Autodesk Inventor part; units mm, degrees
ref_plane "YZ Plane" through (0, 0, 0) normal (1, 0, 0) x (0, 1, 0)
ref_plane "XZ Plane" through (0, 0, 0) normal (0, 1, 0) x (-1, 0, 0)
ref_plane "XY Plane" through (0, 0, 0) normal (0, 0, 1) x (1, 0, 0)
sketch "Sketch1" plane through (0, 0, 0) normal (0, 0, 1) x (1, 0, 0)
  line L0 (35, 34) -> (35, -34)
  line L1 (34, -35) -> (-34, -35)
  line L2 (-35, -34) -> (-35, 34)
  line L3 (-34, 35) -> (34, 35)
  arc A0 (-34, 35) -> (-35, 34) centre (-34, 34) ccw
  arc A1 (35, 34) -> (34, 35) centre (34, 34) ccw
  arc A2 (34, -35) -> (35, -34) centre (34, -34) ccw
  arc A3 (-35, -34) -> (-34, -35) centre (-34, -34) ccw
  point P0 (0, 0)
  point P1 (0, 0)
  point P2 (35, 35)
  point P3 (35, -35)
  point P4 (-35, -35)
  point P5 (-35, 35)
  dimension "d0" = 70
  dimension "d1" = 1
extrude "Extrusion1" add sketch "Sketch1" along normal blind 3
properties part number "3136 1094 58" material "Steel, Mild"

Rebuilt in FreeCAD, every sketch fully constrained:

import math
import FreeCAD as App
import Part
import Sketcher

doc = App.newDocument("Part")
body = doc.addObject("PartDesign::Body", "Body")

# Sketch on XY plane
sketch1 = body.newObject("Sketcher::SketchObject", "Sketch")
sketch1.AttachmentSupport = (doc.getObject("XY_Plane"), [""])
sketch1.MapMode = "FlatFace"
sketch1.addGeometry(Part.LineSegment(App.Vector(35, -34, 0), App.Vector(35, 34, 0)), False)
sketch1.addGeometry(Part.ArcOfCircle(Part.Circle(App.Vector(34, 34, 0), App.Vector(0, 0, 1), 1), math.radians(0), math.radians(90)), False)
sketch1.addGeometry(Part.LineSegment(App.Vector(34, 35, 0), App.Vector(-34, 35, 0)), False)
sketch1.addGeometry(Part.ArcOfCircle(Part.Circle(App.Vector(-34, 34, 0), App.Vector(0, 0, 1), 1), math.radians(90), math.radians(180)), False)
sketch1.addGeometry(Part.LineSegment(App.Vector(-35, 34, 0), App.Vector(-35, -34, 0)), False)
sketch1.addGeometry(Part.ArcOfCircle(Part.Circle(App.Vector(-34, -34, 0), App.Vector(0, 0, 1), 1), math.radians(180), math.radians(270)), False)
sketch1.addGeometry(Part.LineSegment(App.Vector(-34, -35, 0), App.Vector(34, -35, 0)), False)
sketch1.addGeometry(Part.ArcOfCircle(Part.Circle(App.Vector(34, -34, 0), App.Vector(0, 0, 1), 1), math.radians(-90), math.radians(0)), False)
sketch1.addConstraint(Sketcher.Constraint("Tangent", 0, 2, 1, 1))
sketch1.addConstraint(Sketcher.Constraint("Tangent", 1, 2, 2, 1))
sketch1.addConstraint(Sketcher.Constraint("Tangent", 2, 2, 3, 1))
sketch1.addConstraint(Sketcher.Constraint("Tangent", 3, 2, 4, 1))
sketch1.addConstraint(Sketcher.Constraint("Tangent", 4, 2, 5, 1))
sketch1.addConstraint(Sketcher.Constraint("Tangent", 5, 2, 6, 1))
sketch1.addConstraint(Sketcher.Constraint("Tangent", 6, 2, 7, 1))
sketch1.addConstraint(Sketcher.Constraint("Tangent", 7, 2, 0, 1))
sketch1.addConstraint(Sketcher.Constraint("Vertical", 0))
sketch1.addConstraint(Sketcher.Constraint("Horizontal", 2))
sketch1.addConstraint(Sketcher.Constraint("Vertical", 4))
sketch1.addConstraint(Sketcher.Constraint("Horizontal", 6))
sketch1.addConstraint(Sketcher.Constraint("Equal", 1, 3))
sketch1.addConstraint(Sketcher.Constraint("Equal", 3, 5))
sketch1.addConstraint(Sketcher.Constraint("Equal", 5, 7))
sketch1.addConstraint(Sketcher.Constraint("Symmetric", 1, 3, 5, 3, -1, 1))
sketch1.addConstraint(Sketcher.Constraint("Equal", 6, 0))
sketch1.addConstraint(Sketcher.Constraint("Radius", 1, 1.0))
sketch1.addConstraint(Sketcher.Constraint("DistanceX", 2, 2, 2, 1, 68.0))
pad1 = body.newObject("PartDesign::Pad", "Pad")
pad1.Profile = sketch1
pad1.Length = 3

doc.recompute()
